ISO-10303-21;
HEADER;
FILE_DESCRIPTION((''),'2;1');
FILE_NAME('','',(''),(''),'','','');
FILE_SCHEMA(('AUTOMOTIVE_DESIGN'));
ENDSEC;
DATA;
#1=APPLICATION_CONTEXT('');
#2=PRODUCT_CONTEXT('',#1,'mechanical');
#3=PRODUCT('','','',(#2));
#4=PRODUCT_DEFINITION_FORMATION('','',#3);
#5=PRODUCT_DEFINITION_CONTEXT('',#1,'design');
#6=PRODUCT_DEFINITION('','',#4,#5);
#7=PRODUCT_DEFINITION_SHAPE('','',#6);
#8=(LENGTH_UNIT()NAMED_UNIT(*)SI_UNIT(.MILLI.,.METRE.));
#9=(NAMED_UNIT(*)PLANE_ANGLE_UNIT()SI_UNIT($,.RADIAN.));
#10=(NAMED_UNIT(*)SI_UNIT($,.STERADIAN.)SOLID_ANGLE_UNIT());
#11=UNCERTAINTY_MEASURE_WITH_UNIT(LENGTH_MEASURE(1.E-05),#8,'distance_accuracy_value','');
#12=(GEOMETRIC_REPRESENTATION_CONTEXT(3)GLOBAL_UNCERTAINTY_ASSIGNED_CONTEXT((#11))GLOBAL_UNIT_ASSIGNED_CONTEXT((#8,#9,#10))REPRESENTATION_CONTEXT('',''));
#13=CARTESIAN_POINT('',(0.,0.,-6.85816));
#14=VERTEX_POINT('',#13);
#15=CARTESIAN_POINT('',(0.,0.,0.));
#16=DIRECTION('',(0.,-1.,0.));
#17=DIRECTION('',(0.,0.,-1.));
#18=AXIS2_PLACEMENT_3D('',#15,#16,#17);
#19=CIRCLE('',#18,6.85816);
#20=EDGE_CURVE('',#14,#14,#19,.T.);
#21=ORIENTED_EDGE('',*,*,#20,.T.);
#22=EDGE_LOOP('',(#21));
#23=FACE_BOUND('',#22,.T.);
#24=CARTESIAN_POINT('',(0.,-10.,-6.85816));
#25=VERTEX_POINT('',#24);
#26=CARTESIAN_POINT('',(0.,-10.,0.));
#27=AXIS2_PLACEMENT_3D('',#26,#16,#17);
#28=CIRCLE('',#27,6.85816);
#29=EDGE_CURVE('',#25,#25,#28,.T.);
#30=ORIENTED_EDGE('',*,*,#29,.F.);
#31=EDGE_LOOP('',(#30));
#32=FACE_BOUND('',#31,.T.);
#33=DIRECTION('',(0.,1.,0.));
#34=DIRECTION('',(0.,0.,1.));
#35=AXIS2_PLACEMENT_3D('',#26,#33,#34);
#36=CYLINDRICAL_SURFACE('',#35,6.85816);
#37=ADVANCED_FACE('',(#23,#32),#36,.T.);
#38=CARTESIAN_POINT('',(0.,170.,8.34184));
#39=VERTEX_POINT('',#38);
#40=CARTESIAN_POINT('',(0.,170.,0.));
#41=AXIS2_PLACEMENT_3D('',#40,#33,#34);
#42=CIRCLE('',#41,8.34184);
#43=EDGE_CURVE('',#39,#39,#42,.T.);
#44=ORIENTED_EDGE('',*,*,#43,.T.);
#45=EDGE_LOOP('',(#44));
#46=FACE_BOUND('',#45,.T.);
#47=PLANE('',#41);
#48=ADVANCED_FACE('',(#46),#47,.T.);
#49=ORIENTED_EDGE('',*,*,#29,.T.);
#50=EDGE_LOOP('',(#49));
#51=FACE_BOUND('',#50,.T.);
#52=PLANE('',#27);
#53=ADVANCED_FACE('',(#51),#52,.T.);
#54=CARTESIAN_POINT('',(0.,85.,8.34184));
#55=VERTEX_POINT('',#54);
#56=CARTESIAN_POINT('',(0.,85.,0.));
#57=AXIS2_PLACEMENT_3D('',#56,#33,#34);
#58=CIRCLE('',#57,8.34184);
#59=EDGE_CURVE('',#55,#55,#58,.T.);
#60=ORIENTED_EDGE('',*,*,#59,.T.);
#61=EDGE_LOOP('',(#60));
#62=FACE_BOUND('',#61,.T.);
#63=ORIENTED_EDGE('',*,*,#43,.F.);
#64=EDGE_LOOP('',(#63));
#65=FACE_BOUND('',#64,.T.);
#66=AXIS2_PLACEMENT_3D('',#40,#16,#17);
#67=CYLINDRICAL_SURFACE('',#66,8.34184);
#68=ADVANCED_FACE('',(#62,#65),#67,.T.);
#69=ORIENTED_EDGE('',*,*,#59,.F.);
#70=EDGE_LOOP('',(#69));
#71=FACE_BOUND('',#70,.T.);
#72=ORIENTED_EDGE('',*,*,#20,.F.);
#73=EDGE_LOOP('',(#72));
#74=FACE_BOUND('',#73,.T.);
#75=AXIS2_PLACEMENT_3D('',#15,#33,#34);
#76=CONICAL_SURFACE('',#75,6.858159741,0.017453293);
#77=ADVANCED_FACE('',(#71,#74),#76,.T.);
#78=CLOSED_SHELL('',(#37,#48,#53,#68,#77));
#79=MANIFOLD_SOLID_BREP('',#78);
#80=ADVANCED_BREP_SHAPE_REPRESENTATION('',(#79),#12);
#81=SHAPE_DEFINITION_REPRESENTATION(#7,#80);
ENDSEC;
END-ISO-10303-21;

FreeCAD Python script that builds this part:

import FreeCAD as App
import Part
import Sketcher
from FreeCAD import Vector
Q = App.Units.Quantity


def add_polygon(sketch, points):
    """Adds a closed chain of lines whose ends are joined by coincident constraints."""
    first, n = sketch.GeometryCount, len(points)
    for a, b in zip(points, points[1:] + points[:1]):
        sketch.addGeometry(Part.LineSegment(App.Vector(*a, 0), App.Vector(*b, 0)), False)
    for i in range(n):
        sketch.addConstraint(Sketcher.Constraint("Coincident", first + i, 2, first + (i + 1) % n, 1))

doc = App.newDocument("Part")
params = doc.addObject("Spreadsheet::Sheet", "Params")
for row, (alias, value) in enumerate([
    ("sketch1_width", "85 mm"),
    ("revolution_angle", "360 deg"),
    ("pad1_length", "85 mm"),
    ("pad2_length", "10 mm"),
], start=1):
    params.set(f"A{row}", alias)
    params.set(f"B{row}", "=" + value)
    params.setAlias(f"B{row}", alias)

body = doc.addObject("PartDesign::Body", "Body")

# Sketch on YZ plane
sketch1 = body.newObject("Sketcher::SketchObject", "Sketch")
sketch1.AttachmentSupport = (doc.getObject("YZ_Plane"), [""])
sketch1.MapMode = "FlatFace"
add_polygon(sketch1, [(0, 0), (0, -6.85816), (85, -8.34184), (85, 0)])  # lines 0-3
sketch1.addConstraint([
    Sketcher.Constraint("Vertical", 0),
    Sketcher.Constraint("Vertical", 2),
    Sketcher.Constraint("Horizontal", 3),
    Sketcher.Constraint("Coincident", 3, 2, -1, 1),
    Sketcher.Constraint("DistanceX", 3, 2, 3, 1, Q("85 mm")),
    Sketcher.Constraint("Angle", 1, Q("-1 deg")),
    Sketcher.Constraint("DistanceY", 0, 2, 0, 1, Q("6.85816 mm")),
])
sketch1.setExpression("Constraints[8]", "Params.sketch1_width")
revolution = body.newObject("PartDesign::Revolution", "Revolution")
revolution.Profile = sketch1
revolution.ReferenceAxis = (sketch1, ["H_Axis"])
revolution.setExpression("Angle", "Params.revolution_angle")

# Sketch on XZ plane
sketch2 = body.newObject("Sketcher::SketchObject", "Sketch001")
sketch2.AttachmentSupport = (doc.getObject("XZ_Plane"), [""])
sketch2.MapMode = "FlatFace"
sketch2.AttachmentOffset = App.Placement(Vector(0, 0, -85), App.Rotation())
sketch2.addGeometry(Part.Circle(Vector(0, 0, 0), Vector(0, 0, 1), 8.34184), False)
sketch2.addConstraint([
    Sketcher.Constraint("Coincident", 0, 3, -1, 1),
    Sketcher.Constraint("Diameter", 0, Q("16.683681 mm")),
])
pad1 = body.newObject("PartDesign::Pad", "Pad")
pad1.Profile = sketch2
pad1.setExpression("Length", "Params.pad1_length")
pad1.Reversed = True

# Sketch on XZ plane
sketch3 = body.newObject("Sketcher::SketchObject", "Sketch002")
sketch3.AttachmentSupport = (doc.getObject("XZ_Plane"), [""])
sketch3.MapMode = "FlatFace"
sketch3.addGeometry(Part.Circle(Vector(0, 0, 0), Vector(0, 0, 1), 6.85816), False)
sketch3.addConstraint([
    Sketcher.Constraint("Coincident", 0, 3, -1, 1),
    Sketcher.Constraint("Diameter", 0, Q("13.716319 mm")),
])
pad2 = body.newObject("PartDesign::Pad", "Pad001")
pad2.Profile = sketch3
pad2.setExpression("Length", "Params.pad2_length")

doc.recompute()
